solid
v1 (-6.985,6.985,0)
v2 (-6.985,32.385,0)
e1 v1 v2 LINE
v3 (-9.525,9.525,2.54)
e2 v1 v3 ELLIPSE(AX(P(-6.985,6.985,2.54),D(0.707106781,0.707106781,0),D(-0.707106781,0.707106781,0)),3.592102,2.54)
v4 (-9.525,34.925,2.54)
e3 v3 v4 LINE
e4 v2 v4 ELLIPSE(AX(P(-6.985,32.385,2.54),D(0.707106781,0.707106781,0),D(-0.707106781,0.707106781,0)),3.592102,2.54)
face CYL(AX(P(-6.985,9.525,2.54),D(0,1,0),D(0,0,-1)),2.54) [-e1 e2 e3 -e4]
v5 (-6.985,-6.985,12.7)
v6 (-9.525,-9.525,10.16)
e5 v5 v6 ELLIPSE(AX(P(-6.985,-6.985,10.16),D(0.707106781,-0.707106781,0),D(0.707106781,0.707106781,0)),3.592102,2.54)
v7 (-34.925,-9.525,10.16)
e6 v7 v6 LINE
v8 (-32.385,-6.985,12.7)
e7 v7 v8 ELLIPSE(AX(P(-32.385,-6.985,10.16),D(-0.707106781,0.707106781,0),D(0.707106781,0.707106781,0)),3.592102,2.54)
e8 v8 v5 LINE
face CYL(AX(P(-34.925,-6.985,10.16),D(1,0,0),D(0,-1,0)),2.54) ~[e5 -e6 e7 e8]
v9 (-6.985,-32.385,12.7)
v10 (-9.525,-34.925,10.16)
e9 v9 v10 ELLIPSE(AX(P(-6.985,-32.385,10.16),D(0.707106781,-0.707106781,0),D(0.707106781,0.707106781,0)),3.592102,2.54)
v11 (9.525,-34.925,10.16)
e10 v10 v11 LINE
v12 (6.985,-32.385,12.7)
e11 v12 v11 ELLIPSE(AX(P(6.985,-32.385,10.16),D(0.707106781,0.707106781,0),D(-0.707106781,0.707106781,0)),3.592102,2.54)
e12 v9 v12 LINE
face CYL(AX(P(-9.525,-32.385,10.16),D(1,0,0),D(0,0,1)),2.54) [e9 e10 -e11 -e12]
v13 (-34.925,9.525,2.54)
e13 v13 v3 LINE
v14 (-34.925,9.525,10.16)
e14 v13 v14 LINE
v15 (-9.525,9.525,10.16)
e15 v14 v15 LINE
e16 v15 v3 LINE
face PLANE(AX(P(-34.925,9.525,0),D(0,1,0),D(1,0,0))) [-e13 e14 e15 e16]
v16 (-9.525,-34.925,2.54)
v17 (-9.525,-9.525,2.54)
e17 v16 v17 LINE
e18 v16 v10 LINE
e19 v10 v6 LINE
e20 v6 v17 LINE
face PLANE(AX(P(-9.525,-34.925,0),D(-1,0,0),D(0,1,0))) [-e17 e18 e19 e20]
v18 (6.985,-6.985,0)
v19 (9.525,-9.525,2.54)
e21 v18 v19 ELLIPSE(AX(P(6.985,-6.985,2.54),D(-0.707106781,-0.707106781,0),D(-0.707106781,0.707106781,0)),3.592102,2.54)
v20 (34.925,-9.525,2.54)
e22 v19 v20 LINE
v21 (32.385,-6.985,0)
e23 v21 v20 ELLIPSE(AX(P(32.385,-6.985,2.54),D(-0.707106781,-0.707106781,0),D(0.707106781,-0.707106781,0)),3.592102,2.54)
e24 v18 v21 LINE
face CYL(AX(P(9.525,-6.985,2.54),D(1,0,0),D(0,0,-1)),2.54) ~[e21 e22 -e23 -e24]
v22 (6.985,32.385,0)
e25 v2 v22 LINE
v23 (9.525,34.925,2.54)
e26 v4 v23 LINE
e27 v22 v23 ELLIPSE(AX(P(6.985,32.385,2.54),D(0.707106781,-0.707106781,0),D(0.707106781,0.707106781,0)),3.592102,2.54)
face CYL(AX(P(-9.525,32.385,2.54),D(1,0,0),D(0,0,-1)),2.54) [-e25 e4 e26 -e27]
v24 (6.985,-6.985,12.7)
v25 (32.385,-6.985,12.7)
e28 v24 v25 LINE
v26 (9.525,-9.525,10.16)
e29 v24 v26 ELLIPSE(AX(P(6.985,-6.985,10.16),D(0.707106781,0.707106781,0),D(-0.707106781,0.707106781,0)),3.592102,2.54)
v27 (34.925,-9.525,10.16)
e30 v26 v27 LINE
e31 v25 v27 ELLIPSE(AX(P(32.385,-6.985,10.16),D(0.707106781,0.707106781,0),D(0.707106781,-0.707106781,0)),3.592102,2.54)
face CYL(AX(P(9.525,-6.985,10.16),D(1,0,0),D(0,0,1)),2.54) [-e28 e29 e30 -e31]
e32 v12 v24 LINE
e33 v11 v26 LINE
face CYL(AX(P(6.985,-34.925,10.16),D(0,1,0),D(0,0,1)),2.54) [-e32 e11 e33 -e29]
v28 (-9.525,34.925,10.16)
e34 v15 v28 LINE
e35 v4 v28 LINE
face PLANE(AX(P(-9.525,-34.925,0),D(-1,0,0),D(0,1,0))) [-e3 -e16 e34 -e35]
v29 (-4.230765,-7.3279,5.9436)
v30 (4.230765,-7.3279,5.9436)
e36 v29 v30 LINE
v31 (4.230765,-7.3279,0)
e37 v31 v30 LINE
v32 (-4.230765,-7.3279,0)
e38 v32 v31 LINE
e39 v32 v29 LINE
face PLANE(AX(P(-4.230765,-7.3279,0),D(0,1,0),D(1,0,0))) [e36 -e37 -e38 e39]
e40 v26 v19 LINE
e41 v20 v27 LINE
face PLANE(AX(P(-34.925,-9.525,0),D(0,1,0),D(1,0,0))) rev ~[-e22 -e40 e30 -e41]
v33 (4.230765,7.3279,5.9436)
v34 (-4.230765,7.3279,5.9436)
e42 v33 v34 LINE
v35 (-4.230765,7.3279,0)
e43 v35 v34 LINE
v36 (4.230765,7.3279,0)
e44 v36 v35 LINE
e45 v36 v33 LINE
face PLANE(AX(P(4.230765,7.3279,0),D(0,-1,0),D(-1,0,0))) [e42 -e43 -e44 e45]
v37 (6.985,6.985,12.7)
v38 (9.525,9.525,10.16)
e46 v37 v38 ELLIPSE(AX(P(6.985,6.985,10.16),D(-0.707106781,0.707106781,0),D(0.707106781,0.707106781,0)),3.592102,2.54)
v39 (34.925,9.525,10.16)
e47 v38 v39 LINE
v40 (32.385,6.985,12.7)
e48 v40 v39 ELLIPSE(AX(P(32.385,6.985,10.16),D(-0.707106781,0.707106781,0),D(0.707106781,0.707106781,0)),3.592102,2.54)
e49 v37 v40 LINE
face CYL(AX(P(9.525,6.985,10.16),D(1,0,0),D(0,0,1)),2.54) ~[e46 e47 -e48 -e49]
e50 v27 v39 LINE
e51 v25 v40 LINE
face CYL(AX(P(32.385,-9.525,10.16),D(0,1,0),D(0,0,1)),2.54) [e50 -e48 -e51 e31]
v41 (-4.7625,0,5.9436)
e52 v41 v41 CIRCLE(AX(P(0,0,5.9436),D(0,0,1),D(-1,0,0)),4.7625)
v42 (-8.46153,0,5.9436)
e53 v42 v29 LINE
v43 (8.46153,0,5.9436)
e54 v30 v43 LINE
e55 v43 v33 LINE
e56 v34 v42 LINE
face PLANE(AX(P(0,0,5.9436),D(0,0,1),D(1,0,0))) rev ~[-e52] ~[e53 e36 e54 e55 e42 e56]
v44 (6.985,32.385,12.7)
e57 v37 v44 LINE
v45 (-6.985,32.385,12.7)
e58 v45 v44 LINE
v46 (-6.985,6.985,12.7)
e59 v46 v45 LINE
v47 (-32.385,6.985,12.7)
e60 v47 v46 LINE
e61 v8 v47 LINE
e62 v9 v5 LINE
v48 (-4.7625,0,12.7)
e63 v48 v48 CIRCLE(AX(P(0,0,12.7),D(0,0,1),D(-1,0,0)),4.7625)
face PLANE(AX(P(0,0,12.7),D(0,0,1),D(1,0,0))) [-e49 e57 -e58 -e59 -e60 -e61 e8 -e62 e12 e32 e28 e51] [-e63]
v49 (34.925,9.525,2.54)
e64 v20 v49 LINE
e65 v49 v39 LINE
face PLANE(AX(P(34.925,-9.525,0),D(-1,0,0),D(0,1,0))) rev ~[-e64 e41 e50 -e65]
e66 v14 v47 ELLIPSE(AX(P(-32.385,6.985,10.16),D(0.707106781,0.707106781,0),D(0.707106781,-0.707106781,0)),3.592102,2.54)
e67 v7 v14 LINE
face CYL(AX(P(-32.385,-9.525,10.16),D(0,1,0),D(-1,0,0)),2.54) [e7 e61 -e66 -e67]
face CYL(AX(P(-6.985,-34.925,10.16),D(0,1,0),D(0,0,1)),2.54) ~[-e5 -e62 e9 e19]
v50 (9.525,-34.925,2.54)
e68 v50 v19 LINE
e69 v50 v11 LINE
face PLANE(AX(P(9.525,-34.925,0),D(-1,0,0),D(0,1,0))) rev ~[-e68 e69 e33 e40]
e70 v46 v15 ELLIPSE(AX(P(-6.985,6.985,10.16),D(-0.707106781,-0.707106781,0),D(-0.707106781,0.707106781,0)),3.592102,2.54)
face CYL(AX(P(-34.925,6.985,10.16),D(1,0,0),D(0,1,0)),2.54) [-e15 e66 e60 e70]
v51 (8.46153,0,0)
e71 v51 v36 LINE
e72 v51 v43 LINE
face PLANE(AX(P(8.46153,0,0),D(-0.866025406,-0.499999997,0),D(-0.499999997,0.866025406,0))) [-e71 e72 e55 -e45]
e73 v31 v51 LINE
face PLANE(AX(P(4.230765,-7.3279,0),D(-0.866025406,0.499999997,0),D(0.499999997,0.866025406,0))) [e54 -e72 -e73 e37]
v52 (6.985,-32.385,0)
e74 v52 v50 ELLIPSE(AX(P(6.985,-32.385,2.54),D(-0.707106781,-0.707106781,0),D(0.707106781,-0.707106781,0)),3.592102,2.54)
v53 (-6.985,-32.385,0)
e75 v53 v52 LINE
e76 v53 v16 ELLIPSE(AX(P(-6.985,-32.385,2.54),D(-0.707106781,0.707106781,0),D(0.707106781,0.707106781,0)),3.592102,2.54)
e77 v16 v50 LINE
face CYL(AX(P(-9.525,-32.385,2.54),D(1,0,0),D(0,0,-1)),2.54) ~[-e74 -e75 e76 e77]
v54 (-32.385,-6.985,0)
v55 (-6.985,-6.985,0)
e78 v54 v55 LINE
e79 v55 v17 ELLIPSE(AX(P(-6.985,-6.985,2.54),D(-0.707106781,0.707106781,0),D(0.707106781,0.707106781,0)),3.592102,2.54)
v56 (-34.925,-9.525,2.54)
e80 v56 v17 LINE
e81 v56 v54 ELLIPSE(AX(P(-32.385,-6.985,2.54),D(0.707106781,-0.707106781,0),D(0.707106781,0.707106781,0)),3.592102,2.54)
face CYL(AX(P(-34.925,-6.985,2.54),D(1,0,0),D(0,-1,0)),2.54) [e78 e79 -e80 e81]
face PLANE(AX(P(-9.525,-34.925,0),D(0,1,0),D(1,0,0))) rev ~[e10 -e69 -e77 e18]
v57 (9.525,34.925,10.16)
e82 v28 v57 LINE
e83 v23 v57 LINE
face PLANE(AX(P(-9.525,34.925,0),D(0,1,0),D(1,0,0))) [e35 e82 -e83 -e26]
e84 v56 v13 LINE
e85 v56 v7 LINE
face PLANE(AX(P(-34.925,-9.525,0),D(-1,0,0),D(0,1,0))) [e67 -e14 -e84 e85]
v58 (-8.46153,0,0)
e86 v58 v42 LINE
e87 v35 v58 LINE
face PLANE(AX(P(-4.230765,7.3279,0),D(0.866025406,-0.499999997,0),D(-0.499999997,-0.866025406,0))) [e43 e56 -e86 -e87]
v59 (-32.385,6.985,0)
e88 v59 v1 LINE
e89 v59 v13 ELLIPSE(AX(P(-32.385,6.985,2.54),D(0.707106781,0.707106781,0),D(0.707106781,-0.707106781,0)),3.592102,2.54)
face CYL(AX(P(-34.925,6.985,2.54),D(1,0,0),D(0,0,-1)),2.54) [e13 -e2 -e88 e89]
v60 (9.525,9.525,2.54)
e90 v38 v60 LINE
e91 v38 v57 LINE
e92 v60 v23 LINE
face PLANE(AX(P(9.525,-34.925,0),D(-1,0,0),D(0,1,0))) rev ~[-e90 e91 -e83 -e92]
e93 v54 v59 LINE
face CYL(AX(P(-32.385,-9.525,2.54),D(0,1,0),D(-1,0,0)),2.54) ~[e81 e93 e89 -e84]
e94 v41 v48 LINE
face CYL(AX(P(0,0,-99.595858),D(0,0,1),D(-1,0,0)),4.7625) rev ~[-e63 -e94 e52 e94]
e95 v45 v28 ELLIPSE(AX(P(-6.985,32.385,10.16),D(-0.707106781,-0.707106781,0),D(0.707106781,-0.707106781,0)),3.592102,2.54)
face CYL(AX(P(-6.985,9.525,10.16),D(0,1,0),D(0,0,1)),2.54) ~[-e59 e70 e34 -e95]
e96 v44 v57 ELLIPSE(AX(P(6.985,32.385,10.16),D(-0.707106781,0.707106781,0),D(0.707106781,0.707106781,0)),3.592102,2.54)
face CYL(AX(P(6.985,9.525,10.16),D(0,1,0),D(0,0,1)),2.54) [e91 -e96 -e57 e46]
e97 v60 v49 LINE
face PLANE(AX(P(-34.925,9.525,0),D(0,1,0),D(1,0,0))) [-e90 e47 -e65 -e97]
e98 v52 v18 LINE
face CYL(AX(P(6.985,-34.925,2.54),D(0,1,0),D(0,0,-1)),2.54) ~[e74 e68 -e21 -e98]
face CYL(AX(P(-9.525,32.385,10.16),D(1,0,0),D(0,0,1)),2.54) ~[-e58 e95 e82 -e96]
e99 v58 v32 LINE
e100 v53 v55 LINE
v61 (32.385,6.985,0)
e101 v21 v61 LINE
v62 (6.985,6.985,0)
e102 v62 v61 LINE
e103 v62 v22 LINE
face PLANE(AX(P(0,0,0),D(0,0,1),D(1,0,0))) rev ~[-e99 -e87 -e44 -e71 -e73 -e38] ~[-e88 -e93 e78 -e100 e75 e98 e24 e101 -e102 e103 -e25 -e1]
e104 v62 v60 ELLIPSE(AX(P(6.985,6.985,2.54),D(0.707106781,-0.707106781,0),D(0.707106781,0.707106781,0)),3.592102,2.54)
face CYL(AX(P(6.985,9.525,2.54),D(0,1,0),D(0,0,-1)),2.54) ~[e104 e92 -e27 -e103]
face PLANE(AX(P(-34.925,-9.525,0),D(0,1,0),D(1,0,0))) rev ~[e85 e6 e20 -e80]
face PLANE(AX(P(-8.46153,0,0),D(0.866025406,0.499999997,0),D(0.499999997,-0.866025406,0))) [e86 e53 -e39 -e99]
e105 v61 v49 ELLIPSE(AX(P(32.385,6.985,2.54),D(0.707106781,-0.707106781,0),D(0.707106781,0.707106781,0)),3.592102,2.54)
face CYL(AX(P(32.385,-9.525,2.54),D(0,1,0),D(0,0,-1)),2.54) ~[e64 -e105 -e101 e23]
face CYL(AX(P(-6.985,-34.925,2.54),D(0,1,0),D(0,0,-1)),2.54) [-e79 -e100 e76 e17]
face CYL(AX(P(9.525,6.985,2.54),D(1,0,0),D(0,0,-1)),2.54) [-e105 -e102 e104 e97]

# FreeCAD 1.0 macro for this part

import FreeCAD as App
import Part
import Sketcher

V = App.Vector
Q = App.Units.Quantity


def edges_at(feature, points):
    """Names of the edges that pass closest to the given points."""
    edges = feature.Shape.Edges
    near = lambda p: min(range(len(edges)), key=lambda i: edges[i].distToShape(Part.Vertex(*p))[0])
    return sorted({f"Edge{near(p) + 1}" for p in points})

doc = App.newDocument("Part")
params = doc.addObject("Spreadsheet::Sheet", "Params")
for row, (alias, value) in enumerate([
    ("sketch1_width", "0.75 in"),
    ("sketch1_height", "2.75 in"),
    ("pad1_length", "0.5 in"),
    ("sketch2_width", "2.75 in"),
    ("sketch2_height", "0.75 in"),
    ("pad2_length", "0.5 in"),
    ("fillet_radius", "0.1 in"),
    ("fillet2_radius", "0.1 in"),
    ("pocket1_length", "0.234 in"),
    ("sketch4_diameter", "0.375 in"),
    ("hole_diameter", "0.375 in"),
], start=1):
    params.set(f"A{row}", alias)
    params.set(f"B{row}", "=" + value)
    params.setAlias(f"B{row}", alias)

body = doc.addObject("PartDesign::Body", "Body")

# Sketch on XY plane
sketch1 = body.newObject("Sketcher::SketchObject", "Sketch")
sketch1.AttachmentSupport = (doc.getObject("XY_Plane"), [""])
sketch1.MapMode = "FlatFace"
sketch1.addGeometry([
    Part.LineSegment(V(-10, 35, 0), V(-10, -35, 0)),
    Part.LineSegment(V(-10, -35, 0), V(10, -35, 0)),
    Part.LineSegment(V(10, -35, 0), V(10, 35, 0)),
    Part.LineSegment(V(10, 35, 0), V(-10, 35, 0)),
], False)
sketch1.addConstraint([
    Sketcher.Constraint("Coincident", 0, 2, 1, 1),
    Sketcher.Constraint("Coincident", 1, 2, 2, 1),
    Sketcher.Constraint("Coincident", 2, 2, 3, 1),
    Sketcher.Constraint("Coincident", 3, 2, 0, 1),
    Sketcher.Constraint("Vertical", 0),
    Sketcher.Constraint("Horizontal", 1),
    Sketcher.Constraint("Vertical", 2),
    Sketcher.Constraint("Horizontal", 3),
    Sketcher.Constraint("Symmetric", 0, 2, 2, 2, -1, 1),
    Sketcher.Constraint("DistanceX", 1, 1, 1, 2, Q("0.75 in")),
    Sketcher.Constraint("DistanceY", 0, 2, 0, 1, Q("2.75 in")),
])
sketch1.setExpression("Constraints[9]", "Params.sketch1_width")
sketch1.setExpression("Constraints[10]", "Params.sketch1_height")
pad1 = body.newObject("PartDesign::Pad", "Pad")
pad1.Profile = sketch1
pad1.setExpression("Length", "Params.pad1_length")

# Sketch on XY plane
sketch2 = body.newObject("Sketcher::SketchObject", "Sketch001")
sketch2.AttachmentSupport = (doc.getObject("XY_Plane"), [""])
sketch2.MapMode = "FlatFace"
sketch2.addGeometry([
    Part.LineSegment(V(-35, 10, 0), V(-35, -10, 0)),
    Part.LineSegment(V(-35, -10, 0), V(35, -10, 0)),
    Part.LineSegment(V(35, -10, 0), V(35, 10, 0)),
    Part.LineSegment(V(35, 10, 0), V(-35, 10, 0)),
], False)
sketch2.addConstraint([
    Sketcher.Constraint("Coincident", 0, 2, 1, 1),
    Sketcher.Constraint("Coincident", 1, 2, 2, 1),
    Sketcher.Constraint("Coincident", 2, 2, 3, 1),
    Sketcher.Constraint("Coincident", 3, 2, 0, 1),
    Sketcher.Constraint("Vertical", 0),
    Sketcher.Constraint("Horizontal", 1),
    Sketcher.Constraint("Vertical", 2),
    Sketcher.Constraint("Horizontal", 3),
    Sketcher.Constraint("Symmetric", 0, 2, 2, 2, -1, 1),
    Sketcher.Constraint("DistanceX", 1, 1, 1, 2, Q("2.75 in")),
    Sketcher.Constraint("DistanceY", 0, 2, 0, 1, Q("0.75 in")),
])
sketch2.setExpression("Constraints[9]", "Params.sketch2_width")
sketch2.setExpression("Constraints[10]", "Params.sketch2_height")
pad2 = body.newObject("PartDesign::Pad", "Pad001")
pad2.Profile = sketch2
pad2.setExpression("Length", "Params.pad2_length")
doc.recompute()

fillet = body.newObject("PartDesign::Fillet", "Fillet")
fillet.Base = (pad2, edges_at(pad2, [
    (0, 34.925, 12.7),
    (-9.525, 22.225, 12.7),
    (-9.525, -22.225, 12.7),
    (9.525, 22.225, 12.7),
    (9.525, -22.225, 12.7),
    (-22.225, 9.525, 12.7),
    (-34.925, 0, 12.7),
    (-22.225, -9.525, 12.7),
    (0, -34.925, 12.7),
    (22.225, -9.525, 12.7),
    (34.925, 0, 12.7),
    (22.225, 9.525, 12.7),
]))
fillet.setExpression("Radius", "Params.fillet_radius")
doc.recompute()

fillet2 = body.newObject("PartDesign::Fillet", "Fillet001")
fillet2.Base = (fillet, edges_at(fillet, [
    (-9.525, 22.225, 0),
    (-9.525, -22.225, 0),
    (0, -34.925, 0),
    (9.525, 22.225, 0),
    (9.525, -22.225, 0),
    (0, 34.925, 0),
    (-22.225, 9.525, 0),
    (-34.925, 0, 0),
    (-22.225, -9.525, 0),
    (22.225, -9.525, 0),
    (34.925, 0, 0),
    (22.225, 9.525, 0),
]))
fillet2.setExpression("Radius", "Params.fillet2_radius")

# Sketch on XY plane
sketch3 = body.newObject("Sketcher::SketchObject", "Sketch002")
sketch3.AttachmentSupport = (doc.getObject("XY_Plane"), [""])
sketch3.MapMode = "FlatFace"
sketch3.addGeometry([
    Part.LineSegment(V(-4, 7, 0), V(-8, 0, 0)),  # 0
    Part.LineSegment(V(-8, 0, 0), V(-4, -7, 0)),  # 1
    Part.LineSegment(V(-4, -7, 0), V(4, -7, 0)),  # 2
    Part.LineSegment(V(4, -7, 0), V(8, 0, 0)),  # 3
    Part.LineSegment(V(8, 0, 0), V(4, 7, 0)),  # 4
    Part.LineSegment(V(4, 7, 0), V(-4, 7, 0)),  # 5
], False)
sketch3.addConstraint([
    Sketcher.Constraint("Coincident", 0, 2, 1, 1),
    Sketcher.Constraint("Coincident", 1, 2, 2, 1),
    Sketcher.Constraint("Coincident", 2, 2, 3, 1),
    Sketcher.Constraint("Coincident", 3, 2, 4, 1),
    Sketcher.Constraint("Coincident", 4, 2, 5, 1),
    Sketcher.Constraint("Coincident", 5, 2, 0, 1),
    Sketcher.Constraint("Horizontal", 2),
    Sketcher.Constraint("Horizontal", 5),
    Sketcher.Constraint("Symmetric", 0, 2, 3, 2, -1, 1),
    Sketcher.Constraint("Symmetric", 1, 2, 4, 2, -1, 1),
    Sketcher.Constraint("PointOnObject", 0, 2, -1),
    Sketcher.Constraint("Parallel", 0, 3),
    Sketcher.Constraint("Vertical", 2, 2, 4, 2),
    Sketcher.Constraint("Angle", 0, Q("-120 deg")),
    Sketcher.Constraint("DistanceY", 2, 2, 4, 2, Q("0.577 in")),
    Sketcher.Constraint("DistanceX", 2, 1, 2, 2, 8.46153),
])
pocket1 = body.newObject("PartDesign::Pocket", "Pocket")
pocket1.Profile = sketch3
pocket1.setExpression("Length", "Params.pocket1_length")
pocket1.Reversed = True

# Sketch on XY plane
sketch4 = body.newObject("Sketcher::SketchObject", "Sketch003")
sketch4.AttachmentSupport = (doc.getObject("XY_Plane"), [""])
sketch4.MapMode = "FlatFace"
sketch4.addGeometry(Part.Circle(V(0, 0, 0), V(0, 0, 1), 4.8), False)
sketch4.addConstraint([
    Sketcher.Constraint("Coincident", 0, 3, -1, 1),
    Sketcher.Constraint("Diameter", 0, Q("0.375 in")),
])
sketch4.setExpression("Constraints[1]", "Params.sketch4_diameter")
doc.recompute()
hole = body.newObject("PartDesign::Hole", "Hole")
hole.Profile = sketch4
hole.ThreadType = "None"
hole.setExpression("Diameter", "Params.hole_diameter")
hole.DepthType = "ThroughAll"
hole.Reversed = True

doc.recompute()
